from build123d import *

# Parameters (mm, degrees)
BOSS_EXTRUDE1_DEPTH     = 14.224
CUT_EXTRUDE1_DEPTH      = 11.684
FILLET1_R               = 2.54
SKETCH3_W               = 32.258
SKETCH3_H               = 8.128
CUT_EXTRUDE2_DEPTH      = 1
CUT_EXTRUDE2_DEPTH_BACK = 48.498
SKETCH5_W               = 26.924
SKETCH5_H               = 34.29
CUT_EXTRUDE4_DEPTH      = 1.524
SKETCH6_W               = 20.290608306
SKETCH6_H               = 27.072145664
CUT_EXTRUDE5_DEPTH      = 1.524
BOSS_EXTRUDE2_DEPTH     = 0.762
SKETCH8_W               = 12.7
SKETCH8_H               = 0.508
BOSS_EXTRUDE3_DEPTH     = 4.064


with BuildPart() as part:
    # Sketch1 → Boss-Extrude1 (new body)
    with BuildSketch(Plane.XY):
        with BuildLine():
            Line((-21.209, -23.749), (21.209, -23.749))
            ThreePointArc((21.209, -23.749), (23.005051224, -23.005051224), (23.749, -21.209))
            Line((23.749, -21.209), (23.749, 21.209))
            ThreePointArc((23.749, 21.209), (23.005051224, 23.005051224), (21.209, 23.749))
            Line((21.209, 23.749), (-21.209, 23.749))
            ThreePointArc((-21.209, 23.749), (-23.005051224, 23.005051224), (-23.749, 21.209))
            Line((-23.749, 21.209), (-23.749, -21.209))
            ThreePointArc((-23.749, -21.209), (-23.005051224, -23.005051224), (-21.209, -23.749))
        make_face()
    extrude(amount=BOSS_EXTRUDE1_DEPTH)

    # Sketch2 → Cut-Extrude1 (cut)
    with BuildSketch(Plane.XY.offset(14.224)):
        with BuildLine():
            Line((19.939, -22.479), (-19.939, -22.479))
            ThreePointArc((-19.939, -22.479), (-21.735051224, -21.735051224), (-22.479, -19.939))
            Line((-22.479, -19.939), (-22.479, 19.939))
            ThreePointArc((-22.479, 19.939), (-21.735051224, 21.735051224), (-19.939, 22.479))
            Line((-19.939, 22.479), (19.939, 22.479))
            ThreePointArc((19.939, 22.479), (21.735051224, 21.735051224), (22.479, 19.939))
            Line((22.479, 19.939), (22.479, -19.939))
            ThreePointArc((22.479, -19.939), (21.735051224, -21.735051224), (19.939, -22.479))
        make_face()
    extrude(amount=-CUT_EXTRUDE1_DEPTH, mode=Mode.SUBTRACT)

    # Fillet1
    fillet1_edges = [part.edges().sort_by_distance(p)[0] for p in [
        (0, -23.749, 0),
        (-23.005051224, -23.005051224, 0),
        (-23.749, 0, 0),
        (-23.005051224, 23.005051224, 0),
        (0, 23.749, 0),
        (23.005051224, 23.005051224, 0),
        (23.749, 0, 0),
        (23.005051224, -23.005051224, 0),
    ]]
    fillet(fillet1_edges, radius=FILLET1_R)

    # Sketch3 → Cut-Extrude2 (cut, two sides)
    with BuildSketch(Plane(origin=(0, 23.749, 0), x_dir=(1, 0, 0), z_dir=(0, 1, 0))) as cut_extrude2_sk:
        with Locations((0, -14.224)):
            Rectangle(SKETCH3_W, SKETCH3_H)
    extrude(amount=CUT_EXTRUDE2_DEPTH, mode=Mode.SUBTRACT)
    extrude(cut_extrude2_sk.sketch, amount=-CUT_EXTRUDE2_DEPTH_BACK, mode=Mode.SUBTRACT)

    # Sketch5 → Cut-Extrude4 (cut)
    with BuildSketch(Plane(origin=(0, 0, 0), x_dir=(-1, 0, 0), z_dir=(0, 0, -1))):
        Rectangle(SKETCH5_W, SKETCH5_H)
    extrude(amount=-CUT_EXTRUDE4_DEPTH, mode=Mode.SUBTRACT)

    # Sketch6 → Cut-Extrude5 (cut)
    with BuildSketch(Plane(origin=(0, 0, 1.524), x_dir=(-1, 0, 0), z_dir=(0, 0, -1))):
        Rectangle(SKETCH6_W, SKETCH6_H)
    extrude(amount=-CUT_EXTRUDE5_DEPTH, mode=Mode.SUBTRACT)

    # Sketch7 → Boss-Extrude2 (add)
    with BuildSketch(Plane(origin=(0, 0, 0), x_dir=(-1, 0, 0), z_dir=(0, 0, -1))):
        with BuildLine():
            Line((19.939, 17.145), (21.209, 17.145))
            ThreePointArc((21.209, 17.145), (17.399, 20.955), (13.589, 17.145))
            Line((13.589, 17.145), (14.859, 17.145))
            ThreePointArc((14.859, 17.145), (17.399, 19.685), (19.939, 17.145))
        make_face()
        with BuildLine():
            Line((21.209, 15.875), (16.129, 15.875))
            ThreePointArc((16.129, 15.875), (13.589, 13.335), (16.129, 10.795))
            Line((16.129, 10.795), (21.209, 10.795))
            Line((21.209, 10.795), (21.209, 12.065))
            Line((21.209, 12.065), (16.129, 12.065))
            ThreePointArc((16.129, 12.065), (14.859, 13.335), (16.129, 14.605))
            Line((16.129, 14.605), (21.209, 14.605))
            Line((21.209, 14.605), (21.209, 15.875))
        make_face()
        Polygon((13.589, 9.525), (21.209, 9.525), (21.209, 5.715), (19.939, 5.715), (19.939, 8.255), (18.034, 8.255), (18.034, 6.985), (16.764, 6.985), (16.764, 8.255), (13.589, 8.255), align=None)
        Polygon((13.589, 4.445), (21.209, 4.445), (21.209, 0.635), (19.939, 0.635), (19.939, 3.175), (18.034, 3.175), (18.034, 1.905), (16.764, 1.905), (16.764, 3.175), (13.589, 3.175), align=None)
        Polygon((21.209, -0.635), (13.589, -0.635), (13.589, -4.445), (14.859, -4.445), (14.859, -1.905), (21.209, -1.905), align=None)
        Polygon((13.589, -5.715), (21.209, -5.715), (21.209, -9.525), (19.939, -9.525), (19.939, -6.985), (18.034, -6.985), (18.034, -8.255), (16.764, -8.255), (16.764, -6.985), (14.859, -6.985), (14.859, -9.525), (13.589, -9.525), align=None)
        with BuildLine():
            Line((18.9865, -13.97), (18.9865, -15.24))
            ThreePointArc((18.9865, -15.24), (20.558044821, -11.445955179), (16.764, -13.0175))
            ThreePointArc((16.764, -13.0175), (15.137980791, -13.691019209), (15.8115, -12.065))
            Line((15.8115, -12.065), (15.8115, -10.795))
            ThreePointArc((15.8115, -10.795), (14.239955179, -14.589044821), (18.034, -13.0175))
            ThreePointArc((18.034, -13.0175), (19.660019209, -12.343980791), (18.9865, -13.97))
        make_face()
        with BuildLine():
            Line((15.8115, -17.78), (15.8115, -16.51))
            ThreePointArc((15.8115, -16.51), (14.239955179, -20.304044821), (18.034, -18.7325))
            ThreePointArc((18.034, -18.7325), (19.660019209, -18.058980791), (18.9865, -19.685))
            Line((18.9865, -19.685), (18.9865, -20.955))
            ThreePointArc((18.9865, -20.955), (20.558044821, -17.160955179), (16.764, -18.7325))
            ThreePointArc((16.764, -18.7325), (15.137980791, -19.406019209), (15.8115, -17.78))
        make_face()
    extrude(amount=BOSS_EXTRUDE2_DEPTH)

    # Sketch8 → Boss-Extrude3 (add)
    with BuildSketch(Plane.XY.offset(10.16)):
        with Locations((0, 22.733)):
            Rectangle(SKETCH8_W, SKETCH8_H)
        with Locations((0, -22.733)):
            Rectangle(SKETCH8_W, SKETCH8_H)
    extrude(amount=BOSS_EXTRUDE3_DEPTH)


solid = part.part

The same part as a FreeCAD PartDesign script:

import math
import FreeCAD as App
import Part
import Sketcher
Q = App.Units.Quantity


def edges_at(feature, points):
    """Names of the edges that pass closest to the given points."""
    edges = feature.Shape.Edges
    near = lambda p: min(range(len(edges)), key=lambda i: edges[i].distToShape(Part.Vertex(*p))[0])
    return sorted({f"Edge{near(p) + 1}" for p in points})


def add_polygon(sketch, points):
    """Adds a closed chain of lines whose ends are joined by coincident constraints."""
    first, n = sketch.GeometryCount, len(points)
    for a, b in zip(points, points[1:] + points[:1]):
        sketch.addGeometry(Part.LineSegment(App.Vector(*a, 0), App.Vector(*b, 0)), False)
    for i in range(n):
        sketch.addConstraint(Sketcher.Constraint("Coincident", first + i, 2, first + (i + 1) % n, 1))

doc = App.newDocument("Part")
params = doc.addObject("Spreadsheet::Sheet", "Params")
for row, (alias, value) in enumerate([
    ("sketch1_radius", "0.1 in"),
    ("sketch1_width", "1.67 in"),
    ("pad1_length", "0.56 in"),
    ("sketch2_radius", "0.1 in"),
    ("sketch2_width", "1.57 in"),
    ("pocket1_length", "0.46 in"),
    ("fillet_radius", "0.1 in"),
    ("sketch3_width", "1.27 in"),
    ("sketch3_height", "0.32 in"),
    ("sketch4_width", "1.06 in"),
    ("sketch4_height", "1.35 in"),
    ("pocket3_length", "0.06 in"),
    ("pocket4_length", "0.06 in"),
    ("sketch6_radius", "0.1 in"),
    ("sketch6_radius2", "0.15 in"),
    ("sketch6_width", "0.2 in"),
    ("pad2_length", "0.03 in"),
    ("sketch7_width", "0.5 in"),
    ("sketch7_height", "0.02 in"),
    ("pad3_length", "0.16 in"),
], start=1):
    params.set(f"A{row}", alias)
    params.set(f"B{row}", "=" + value)
    params.setAlias(f"B{row}", alias)

body = doc.addObject("PartDesign::Body", "Body")

sketch1 = body.newObject("Sketcher::SketchObject", "Sketch")
sketch1.AttachmentSupport = (doc.getObject("XY_Plane"), [""])
sketch1.MapMode = "FlatFace"
sketch1.addGeometry([
    Part.LineSegment(App.Vector(-21.209, -23.749, 0), App.Vector(21.209, -23.749, 0)),
    Part.ArcOfCircle(Part.Circle(App.Vector(21.209, -21.209, 0), App.Vector(0, 0, 1), 2.54), math.radians(-90), math.radians(0)),
    Part.LineSegment(App.Vector(23.749, -21.209, 0), App.Vector(23.749, 21.209, 0)),
    Part.ArcOfCircle(Part.Circle(App.Vector(21.209, 21.209, 0), App.Vector(0, 0, 1), 2.54), math.radians(0), math.radians(90)),
    Part.LineSegment(App.Vector(21.209, 23.749, 0), App.Vector(-21.209, 23.749, 0)),
    Part.ArcOfCircle(Part.Circle(App.Vector(-21.209, 21.209, 0), App.Vector(0, 0, 1), 2.54), math.radians(90), math.radians(180)),
    Part.LineSegment(App.Vector(-23.749, 21.209, 0), App.Vector(-23.749, -21.209, 0)),
    Part.ArcOfCircle(Part.Circle(App.Vector(-21.209, -21.209, 0), App.Vector(0, 0, 1), 2.54), math.radians(-180), math.radians(-90)),
], False)
sketch1.addConstraint([
    Sketcher.Constraint("Tangent", 0, 2, 1, 1),
    Sketcher.Constraint("Tangent", 1, 2, 2, 1),
    Sketcher.Constraint("Tangent", 2, 2, 3, 1),
    Sketcher.Constraint("Tangent", 3, 2, 4, 1),
    Sketcher.Constraint("Tangent", 4, 2, 5, 1),
    Sketcher.Constraint("Tangent", 5, 2, 6, 1),
    Sketcher.Constraint("Tangent", 6, 2, 7, 1),
    Sketcher.Constraint("Tangent", 7, 2, 0, 1),
    Sketcher.Constraint("Horizontal", 0),
    Sketcher.Constraint("Vertical", 2),
    Sketcher.Constraint("Horizontal", 4),
    Sketcher.Constraint("Vertical", 6),
    Sketcher.Constraint("Equal", 1, 3),
    Sketcher.Constraint("Equal", 3, 5),
    Sketcher.Constraint("Equal", 5, 7),
    Sketcher.Constraint("Symmetric", 1, 3, 5, 3, -1, 1),
    Sketcher.Constraint("Equal", 4, 2),
    Sketcher.Constraint("Radius", 1, Q("0.1 in")),
    Sketcher.Constraint("DistanceX", 0, 1, 0, 2, Q("1.67 in")),
])
sketch1.setExpression("Constraints[17]", "Params.sketch1_radius")
sketch1.setExpression("Constraints[18]", "Params.sketch1_width")
pad1 = body.newObject("PartDesign::Pad", "Pad")
pad1.Profile = sketch1
pad1.setExpression("Length", "Params.pad1_length")

sketch2 = body.newObject("Sketcher::SketchObject", "Sketch001")
sketch2.AttachmentSupport = (doc.getObject("XY_Plane"), [""])
sketch2.MapMode = "FlatFace"
sketch2.AttachmentOffset = App.Placement(App.Vector(0, 0, 0.56 * 25.4), App.Rotation())
sketch2.addGeometry([
    Part.LineSegment(App.Vector(-19.939, -22.479, 0), App.Vector(19.939, -22.479, 0)),
    Part.ArcOfCircle(Part.Circle(App.Vector(19.939, -19.939, 0), App.Vector(0, 0, 1), 2.54), math.radians(-90), math.radians(0)),
    Part.LineSegment(App.Vector(22.479, -19.939, 0), App.Vector(22.479, 19.939, 0)),
    Part.ArcOfCircle(Part.Circle(App.Vector(19.939, 19.939, 0), App.Vector(0, 0, 1), 2.54), math.radians(0), math.radians(90)),
    Part.LineSegment(App.Vector(19.939, 22.479, 0), App.Vector(-19.939, 22.479, 0)),
    Part.ArcOfCircle(Part.Circle(App.Vector(-19.939, 19.939, 0), App.Vector(0, 0, 1), 2.54), math.radians(90), math.radians(180)),
    Part.LineSegment(App.Vector(-22.479, 19.939, 0), App.Vector(-22.479, -19.939, 0)),
    Part.ArcOfCircle(Part.Circle(App.Vector(-19.939, -19.939, 0), App.Vector(0, 0, 1), 2.54), math.radians(-180), math.radians(-90)),
], False)
sketch2.addConstraint([
    Sketcher.Constraint("Tangent", 0, 2, 1, 1),
    Sketcher.Constraint("Tangent", 1, 2, 2, 1),
    Sketcher.Constraint("Tangent", 2, 2, 3, 1),
    Sketcher.Constraint("Tangent", 3, 2, 4, 1),
    Sketcher.Constraint("Tangent", 4, 2, 5, 1),
    Sketcher.Constraint("Tangent", 5, 2, 6, 1),
    Sketcher.Constraint("Tangent", 6, 2, 7, 1),
    Sketcher.Constraint("Tangent", 7, 2, 0, 1),
    Sketcher.Constraint("Horizontal", 0),
    Sketcher.Constraint("Vertical", 2),
    Sketcher.Constraint("Horizontal", 4),
    Sketcher.Constraint("Vertical", 6),
    Sketcher.Constraint("Equal", 1, 3),
    Sketcher.Constraint("Equal", 3, 5),
    Sketcher.Constraint("Equal", 5, 7),
    Sketcher.Constraint("Symmetric", 1, 3, 5, 3, -1, 1),
    Sketcher.Constraint("Equal", 4, 2),
    Sketcher.Constraint("Radius", 1, Q("0.1 in")),
    Sketcher.Constraint("DistanceX", 0, 1, 0, 2, Q("1.57 in")),
])
sketch2.setExpression("Constraints[17]", "Params.sketch2_radius")
sketch2.setExpression("Constraints[18]", "Params.sketch2_width")
pocket1 = body.newObject("PartDesign::Pocket", "Pocket")
pocket1.Profile = sketch2
pocket1.setExpression("Length", "Params.pocket1_length")
doc.recompute()

fillet = body.newObject("PartDesign::Fillet", "Fillet")
fillet.Base = (pocket1, edges_at(pocket1, [
    (0, -23.749, 0),
    (-23.005, -23.005, 0),
    (-23.749, 0, 0),
    (-23.005, 23.005, 0),
    (0, 23.749, 0),
    (23.005, 23.005, 0),
    (23.749, 0, 0),
    (23.005, -23.005, 0),
]))
fillet.setExpression("Radius", "Params.fillet_radius")

sketch3 = body.newObject("Sketcher::SketchObject", "Sketch002")
sketch3.AttachmentSupport = (doc.getObject("XZ_Plane"), [""])
sketch3.MapMode = "FlatFace"
sketch3.AttachmentOffset = App.Placement(App.Vector(0, 0, -0.935 * 25.4), App.Rotation())
add_polygon(sketch3, [(-16.129, 10.16), (-16.129, 18.288), (16.129, 18.288), (16.129, 10.16)])
sketch3.addConstraint([
    Sketcher.Constraint("Vertical", 0),
    Sketcher.Constraint("Horizontal", 1),
    Sketcher.Constraint("Vertical", 2),
    Sketcher.Constraint("Horizontal", 3),
    Sketcher.Constraint("DistanceX", 1, 1, 1, 2, Q("1.27 in")),
    Sketcher.Constraint("DistanceY", 0, 1, 0, 2, Q("0.32 in")),
    Sketcher.Constraint("DistanceY", -1, 1, 2, 2, Q("0.4 in")),
    Sketcher.Constraint("DistanceX", 0, 2, -1, 1, Q("0.635 in")),
])
sketch3.setExpression("Constraints[8]", "Params.sketch3_width")
sketch3.setExpression("Constraints[9]", "Params.sketch3_height")
pocket2 = body.newObject("PartDesign::Pocket", "Pocket001")
pocket2.Profile = sketch3
pocket2.Type = "ThroughAll"
pocket2.Midplane = True

sketch4 = body.newObject("Sketcher::SketchObject", "Sketch003")
sketch4.AttachmentSupport = (doc.getObject("XY_Plane"), [""])
sketch4.MapMode = "FlatFace"
add_polygon(sketch4, [(13.462, 17.145), (13.462, -17.145), (-13.462, -17.145), (-13.462, 17.145)])
sketch4.addConstraint([
    Sketcher.Constraint("Vertical", 0),
    Sketcher.Constraint("Horizontal", 1),
    Sketcher.Constraint("Vertical", 2),
    Sketcher.Constraint("Horizontal", 3),
    Sketcher.Constraint("Symmetric", 0, 2, 2, 2, -1, 1),
    Sketcher.Constraint("DistanceX", 1, 2, 1, 1, Q("1.06 in")),
    Sketcher.Constraint("DistanceY", 0, 2, 0, 1, Q("1.35 in")),
])
sketch4.setExpression("Constraints[9]", "Params.sketch4_width")
sketch4.setExpression("Constraints[10]", "Params.sketch4_height")
pocket3 = body.newObject("PartDesign::Pocket", "Pocket002")
pocket3.Profile = sketch4
pocket3.setExpression("Length", "Params.pocket3_length")
pocket3.Reversed = True

sketch5 = body.newObject("Sketcher::SketchObject", "Sketch004")
sketch5.AttachmentSupport = (doc.getObject("XY_Plane"), [""])
sketch5.MapMode = "FlatFace"
sketch5.AttachmentOffset = App.Placement(App.Vector(0, 0, 0.06 * 25.4), App.Rotation())
add_polygon(sketch5, [(10.145304, 13.536073), (10.145304, -13.536073), (-10.145304, -13.536073), (-10.145304, 13.536073)])
sketch5.addConstraint([
    Sketcher.Constraint("Vertical", 0),
    Sketcher.Constraint("Horizontal", 1),
    Sketcher.Constraint("Vertical", 2),
    Sketcher.Constraint("Horizontal", 3),
    Sketcher.Constraint("Symmetric", 0, 2, 2, 2, -1, 1),
    Sketcher.Constraint("DistanceX", 1, 2, 1, 1, Q("20.290608 mm")),
    Sketcher.Constraint("DistanceY", 0, 2, 0, 1, Q("27.072146 mm")),
])
pocket4 = body.newObject("PartDesign::Pocket", "Pocket003")
pocket4.Profile = sketch5
pocket4.setExpression("Length", "Params.pocket4_length")
pocket4.Reversed = True

sketch6 = body.newObject("Sketcher::SketchObject", "Sketch005")
sketch6.AttachmentSupport = (doc.getObject("XY_Plane"), [""])
sketch6.MapMode = "FlatFace"
sketch6.addGeometry(Part.LineSegment(App.Vector(-19.939, 17.145, 0), App.Vector(-21.209, 17.145, 0)), False)
sketch6.addGeometry(Part.ArcOfCircle(Part.Circle(App.Vector(-17.399, 17.145, 0), App.Vector(0, 0, 1), 3.81), math.radians(0), math.radians(180)), False)
sketch6.addGeometry(Part.LineSegment(App.Vector(-13.589, 17.145, 0), App.Vector(-14.859, 17.145, 0)), False)
sketch6.addGeometry(Part.ArcOfCircle(Part.Circle(App.Vector(-17.399, 17.145, 0), App.Vector(0, 0, 1), 2.54), math.radians(0), math.radians(180)), False)
sketch6.addGeometry(Part.LineSegment(App.Vector(-21.209, 15.875, 0), App.Vector(-16.129, 15.875, 0)), False)
sketch6.addGeometry(Part.ArcOfCircle(Part.Circle(App.Vector(-16.129, 13.335, 0), App.Vector(0, 0, 1), 2.54), math.radians(-90), math.radians(90)), False)
sketch6.addGeometry(Part.LineSegment(App.Vector(-16.129, 10.795, 0), App.Vector(-21.209, 10.795, 0)), False)
sketch6.addGeometry(Part.LineSegment(App.Vector(-21.209, 10.795, 0), App.Vector(-21.209, 12.065, 0)), False)
sketch6.addGeometry(Part.LineSegment(App.Vector(-21.209, 12.065, 0), App.Vector(-16.129, 12.065, 0)), False)
sketch6.addGeometry(Part.ArcOfCircle(Part.Circle(App.Vector(-16.129, 13.335, 0), App.Vector(0, 0, 1), 1.27), math.radians(-90), math.radians(90)), False)
sketch6.addGeometry(Part.LineSegment(App.Vector(-16.129, 14.605, 0), App.Vector(-21.209, 14.605, 0)), False)
sketch6.addGeometry(Part.LineSegment(App.Vector(-21.209, 14.605, 0), App.Vector(-21.209, 15.875, 0)), False)
add_polygon(sketch6, [(-21.209, 9.525), (-13.589, 9.525), (-13.589, 8.255), (-16.764, 8.255), (-16.764, 6.985), (-18.034, 6.985), (-18.034, 8.255), (-19.939, 8.255), (-19.939, 5.715), (-21.209, 5.715)])
add_polygon(sketch6, [(-21.209, 4.445), (-13.589, 4.445), (-13.589, 3.175), (-16.764, 3.175), (-16.764, 1.905), (-18.034, 1.905), (-18.034, 3.175), (-19.939, 3.175), (-19.939, 0.635), (-21.209, 0.635)])
add_polygon(sketch6, [(-21.209, -0.635), (-13.589, -0.635), (-13.589, -4.445), (-14.859, -4.445), (-14.859, -1.905), (-21.209, -1.905)])
add_polygon(sketch6, [(-21.209, -5.715), (-13.589, -5.715), (-13.589, -9.525), (-14.859, -9.525), (-14.859, -6.985), (-16.764, -6.985), (-16.764, -8.255), (-18.034, -8.255), (-18.034, -6.985), (-19.939, -6.985), (-19.939, -9.525), (-21.209, -9.525)])
sketch6.addGeometry(Part.LineSegment(App.Vector(-18.9865, -13.97, 0), App.Vector(-18.9865, -15.24, 0)), False)
sketch6.addGeometry(Part.ArcOfCircle(Part.Circle(App.Vector(-18.9865, -13.0175, 0), App.Vector(0, 0, 1), 2.2225), math.radians(0), math.radians(270)), False)
sketch6.addGeometry(Part.ArcOfCircle(Part.Circle(App.Vector(-15.8115, -13.0175, 0), App.Vector(0, 0, 1), 0.9525), math.radians(180), math.radians(450)), False)
sketch6.addGeometry(Part.LineSegment(App.Vector(-15.8115, -12.065, 0), App.Vector(-15.8115, -10.795, 0)), False)
sketch6.addGeometry(Part.ArcOfCircle(Part.Circle(App.Vector(-15.8115, -13.0175, 0), App.Vector(0, 0, 1), 2.2225), math.radians(180), math.radians(450)), False)
sketch6.addGeometry(Part.ArcOfCircle(Part.Circle(App.Vector(-18.9865, -13.0175, 0), App.Vector(0, 0, 1), 0.9525), math.radians(0), math.radians(270)), False)
sketch6.addGeometry(Part.LineSegment(App.Vector(-15.8115, -17.78, 0), App.Vector(-15.8115, -16.51, 0)), False)
sketch6.addGeometry(Part.ArcOfCircle(Part.Circle(App.Vector(-15.8115, -18.7325, 0), App.Vector(0, 0, 1), 2.2225), math.radians(180), math.radians(450)), False)
sketch6.addGeometry(Part.ArcOfCircle(Part.Circle(App.Vector(-18.9865, -18.7325, 0), App.Vector(0, 0, 1), 0.9525), math.radians(0), math.radians(270)), False)
sketch6.addGeometry(Part.LineSegment(App.Vector(-18.9865, -19.685, 0), App.Vector(-18.9865, -20.955, 0)), False)
sketch6.addGeometry(Part.ArcOfCircle(Part.Circle(App.Vector(-18.9865, -18.7325, 0), App.Vector(0, 0, 1), 2.2225), math.radians(0), math.radians(270)), False)
sketch6.addGeometry(Part.ArcOfCircle(Part.Circle(App.Vector(-15.8115, -18.7325, 0), App.Vector(0, 0, 1), 0.9525), math.radians(180), math.radians(450)), False)
sketch6.addConstraint([
    Sketcher.Constraint("Coincident", 0, 2, 1, 2),
    Sketcher.Constraint("Coincident", 1, 1, 2, 1),
    Sketcher.Constraint("Coincident", 2, 2, 3, 1),
    Sketcher.Constraint("Coincident", 3, 2, 0, 1),
    Sketcher.Constraint("Tangent", 4, 2, 5, 2),
    Sketcher.Constraint("Tangent", 5, 1, 6, 1),
    Sketcher.Constraint("Coincident", 6, 2, 7, 1),
    Sketcher.Constraint("Coincident", 7, 2, 8, 1),
    Sketcher.Constraint("Tangent", 8, 2, 9, 1),
    Sketcher.Constraint("Tangent", 9, 2, 10, 1),
    Sketcher.Constraint("Coincident", 10, 2, 11, 1),
    Sketcher.Constraint("Coincident", 11, 2, 4, 1),
    Sketcher.Constraint("Coincident", 50, 2, 51, 2),
    Sketcher.Constraint("Tangent", 51, 1, 52, 1),
    Sketcher.Constraint("Coincident", 52, 2, 53, 1),
    Sketcher.Constraint("Coincident", 53, 2, 54, 2),
    Sketcher.Constraint("Tangent", 54, 1, 55, 1),
    Sketcher.Constraint("Coincident", 55, 2, 50, 1),
    Sketcher.Constraint("Coincident", 56, 2, 57, 2),
    Sketcher.Constraint("Tangent", 57, 1, 58, 1),
    Sketcher.Constraint("Coincident", 58, 2, 59, 1),
    Sketcher.Constraint("Coincident", 59, 2, 60, 2),
    Sketcher.Constraint("Tangent", 60, 1, 61, 1),
    Sketcher.Constraint("Coincident", 61, 2, 56, 1),
    Sketcher.Constraint("Horizontal", 0),
    Sketcher.Constraint("Horizontal", 2),
    Sketcher.Constraint("Horizontal", 4),
    Sketcher.Constraint("Horizontal", 6),
    Sketcher.Constraint("Vertical", 7),
    Sketcher.Constraint("Horizontal", 8),
    Sketcher.Constraint("Horizontal", 10),
    Sketcher.Constraint("Vertical", 11),
    Sketcher.Constraint("Horizontal", 12),
    Sketcher.Constraint("Vertical", 13),
    Sketcher.Constraint("Horizontal", 14),
    Sketcher.Constraint("Vertical", 15),
    Sketcher.Constraint("Horizontal", 16),
    Sketcher.Constraint("Vertical", 17),
    Sketcher.Constraint("Horizontal", 18),
    Sketcher.Constraint("Vertical", 19),
    Sketcher.Constraint("Horizontal", 20),
    Sketcher.Constraint("Vertical", 21),
    Sketcher.Constraint("Horizontal", 22),
    Sketcher.Constraint("Vertical", 23),
    Sketcher.Constraint("Horizontal", 24),
    Sketcher.Constraint("Vertical", 25),
    Sketcher.Constraint("Horizontal", 26),
    Sketcher.Constraint("Vertical", 27),
    Sketcher.Constraint("Horizontal", 28),
    Sketcher.Constraint("Vertical", 29),
    Sketcher.Constraint("Horizontal", 30),
    Sketcher.Constraint("Vertical", 31),
    Sketcher.Constraint("Horizontal", 32),
    Sketcher.Constraint("Vertical", 33),
    Sketcher.Constraint("Horizontal", 34),
    Sketcher.Constraint("Vertical", 35),
    Sketcher.Constraint("Horizontal", 36),
    Sketcher.Constraint("Vertical", 37),
    Sketcher.Constraint("Horizontal", 38),
    Sketcher.Constraint("Vertical", 39),
    Sketcher.Constraint("Horizontal", 40),
    Sketcher.Constraint("Vertical", 41),
    Sketcher.Constraint("Horizontal", 42),
    Sketcher.Constraint("Vertical", 43),
    Sketcher.Constraint("Horizontal", 44),
    Sketcher.Constraint("Vertical", 45),
    Sketcher.Constraint("Horizontal", 46),
    Sketcher.Constraint("Vertical", 47),
    Sketcher.Constraint("Horizontal", 48),
    Sketcher.Constraint("Vertical", 49),
    Sketcher.Constraint("Vertical", 50),
    Sketcher.Constraint("Vertical", 53),
    Sketcher.Constraint("Vertical", 56),
    Sketcher.Constraint("Vertical", 59),
    Sketcher.Constraint("Coincident", 3, 3, 1, 3),
    Sketcher.Constraint("Coincident", 9, 3, 5, 3),
    Sketcher.Constraint("Coincident", 54, 3, 52, 3),
    Sketcher.Constraint("Coincident", 55, 3, 51, 3),
    Sketcher.Constraint("Coincident", 60, 3, 58, 3),
    Sketcher.Constraint("Coincident", 61, 3, 57, 3),
    Sketcher.Constraint("Equal", 3, 5),
    Sketcher.Constraint("Equal", 51, 54),
    Sketcher.Constraint("Equal", 54, 57),
    Sketcher.Constraint("Equal", 55, 58),
    Sketcher.Constraint("Equal", 57, 60),
    Sketcher.Constraint("Symmetric", 22, 2, 33, 2, -1),
    Sketcher.Constraint("Symmetric", 30, 2, 37, 2, -1),
    Sketcher.Constraint("Symmetric", 12, 2, 39, 2, -1),
    Sketcher.Constraint("Symmetric", 15, 2, 42, 2, -1),
    Sketcher.Constraint("Symmetric", 17, 2, 44, 2, -1),
    Sketcher.Constraint("Symmetric", 21, 2, 48, 2, -1),
    Sketcher.Constraint("Horizontal", 51, 3, 52, 3),
    Sketcher.Constraint("Horizontal", 57, 3, 58, 3),
    Sketcher.Constraint("Horizontal", 3, 3, 0, 2),
    Sketcher.Constraint("Horizontal", 0, 2, 1, 1),
    Sketcher.Constraint("Horizontal", 14, 2, 17, 2),
    Sketcher.Constraint("Horizontal", 24, 2, 27, 2),
    Sketcher.Constraint("Horizontal", 42, 2, 45, 2),
    Sketcher.Constraint("Vertical", 54, 3, 57, 3),
    Sketcher.Constraint("Vertical", 0, 2, 6, 2),
    Sketcher.Constraint("Vertical", 7, 2, 10, 2),
    Sketcher.Constraint("Vertical", 1, 1, 12, 2),
    Sketcher.Constraint("Vertical", 3, 2, 18, 2),
    Sketcher.Constraint("Vertical", 11, 2, 20, 2),
    Sketcher.Constraint("Vertical", 13, 2, 22, 2),
    Sketcher.Constraint("Vertical", 15, 2, 24, 2),
    Sketcher.Constraint("Vertical", 17, 2, 26, 2),
    Sketcher.Constraint("Vertical", 19, 2, 28, 2),
    Sketcher.Constraint("Vertical", 21, 2, 30, 2),
    Sketcher.Constraint("Vertical", 2, 2, 34, 2),
    Sketcher.Constraint("Vertical", 35, 2, 40, 2),
    Sketcher.Constraint("Vertical", 29, 2, 46, 2),
    Sketcher.Constraint("Vertical", 60, 3, 50, 2),
    Sketcher.Constraint("Vertical", 43, 2, 51, 1),
    Sketcher.Constraint("Vertical", 61, 3, 52, 2),
    Sketcher.Constraint("Vertical", 45, 2, 54, 1),
    Sketcher.Constraint("Vertical", 53, 2, 56, 2),
    Sketcher.Constraint("Vertical", 55, 2, 58, 2),
    Sketcher.Constraint("Equal", 2, 16),
    Sketcher.Constraint("Equal", 28, 42),
    Sketcher.Constraint("Equal", 48, 7),
    Sketcher.Constraint("Equal", 11, 13),
    Sketcher.Constraint("Equal", 13, 15),
    Sketcher.Constraint("Equal", 17, 23),
    Sketcher.Constraint("Equal", 23, 25),
    Sketcher.Constraint("Equal", 19, 29),
    Sketcher.Constraint("Equal", 29, 35),
    Sketcher.Constraint("Equal", 33, 39),
    Sketcher.Constraint("Equal", 35, 41),
    Sketcher.Constraint("Radius", 3, Q("0.1 in")),
    Sketcher.Constraint("Radius", 1, Q("0.15 in")),
    Sketcher.Constraint("DistanceX", 4, 1, 4, 2, Q("0.2 in")),
    Sketcher.Constraint("DistanceY", 50, 2, -1, 1, Q("0.6 in")),
    Sketcher.Constraint("DistanceY", 61, 2, -1, 1, Q("0.7 in")),
    Sketcher.Constraint("Radius", 51, Q("0.0875 in")),
    Sketcher.Constraint("DistanceX", 14, 2, -1, 1, Q("0.66 in")),
    Sketcher.Constraint("DistanceY", -1, 1, 1, 3, Q("0.675 in")),
    Sketcher.Constraint("DistanceY", -1, 1, 5, 3, Q("0.525 in")),
    Sketcher.Constraint("DistanceY", -1, 1, 12, 2, Q("0.375 in")),
    Sketcher.Constraint("DistanceY", -1, 1, 22, 2, Q("0.175 in")),
])
sketch6.setExpression("Constraints[167]", "Params.sketch6_radius")
sketch6.setExpression("Constraints[168]", "Params.sketch6_radius2")
sketch6.setExpression("Constraints[169]", "Params.sketch6_width")
pad2 = body.newObject("PartDesign::Pad", "Pad001")
pad2.Profile = sketch6
pad2.setExpression("Length", "Params.pad2_length")
pad2.Reversed = True

sketch7 = body.newObject("Sketcher::SketchObject", "Sketch006")
sketch7.AttachmentSupport = (doc.getObject("XY_Plane"), [""])
sketch7.MapMode = "FlatFace"
sketch7.AttachmentOffset = App.Placement(App.Vector(0, 0, 0.4 * 25.4), App.Rotation())
add_polygon(sketch7, [(-6.35, 22.987), (-6.35, 22.479), (6.35, 22.479), (6.35, 22.987)])
add_polygon(sketch7, [(-6.35, -22.479), (-6.35, -22.987), (6.35, -22.987), (6.35, -22.479)])
sketch7.addConstraint([
    Sketcher.Constraint("Vertical", 0),
    Sketcher.Constraint("Horizontal", 1),
    Sketcher.Constraint("Vertical", 2),
    Sketcher.Constraint("Horizontal", 3),
    Sketcher.Constraint("Vertical", 4),
    Sketcher.Constraint("Horizontal", 5),
    Sketcher.Constraint("Vertical", 6),
    Sketcher.Constraint("Horizontal", 7),
    Sketcher.Constraint("Symmetric", 2, 2, 4, 2, -1, 1),
    Sketcher.Constraint("Symmetric", 0, 2, 6, 2, -1, 1),
    Sketcher.Constraint("Vertical", 3, 2, 4, 2),
    Sketcher.Constraint("DistanceX", 1, 1, 1, 2, Q("0.5 in")),
    Sketcher.Constraint("DistanceY", 0, 2, 0, 1, Q("0.02 in")),
    Sketcher.Constraint("DistanceY", 4, 2, 0, 2, Q("1.79 in")),
])
sketch7.setExpression("Constraints[19]", "Params.sketch7_width")
sketch7.setExpression("Constraints[20]", "Params.sketch7_height")
pad3 = body.newObject("PartDesign::Pad", "Pad002")
pad3.Profile = sketch7
pad3.setExpression("Length", "Params.pad3_length")

doc.recompute()
